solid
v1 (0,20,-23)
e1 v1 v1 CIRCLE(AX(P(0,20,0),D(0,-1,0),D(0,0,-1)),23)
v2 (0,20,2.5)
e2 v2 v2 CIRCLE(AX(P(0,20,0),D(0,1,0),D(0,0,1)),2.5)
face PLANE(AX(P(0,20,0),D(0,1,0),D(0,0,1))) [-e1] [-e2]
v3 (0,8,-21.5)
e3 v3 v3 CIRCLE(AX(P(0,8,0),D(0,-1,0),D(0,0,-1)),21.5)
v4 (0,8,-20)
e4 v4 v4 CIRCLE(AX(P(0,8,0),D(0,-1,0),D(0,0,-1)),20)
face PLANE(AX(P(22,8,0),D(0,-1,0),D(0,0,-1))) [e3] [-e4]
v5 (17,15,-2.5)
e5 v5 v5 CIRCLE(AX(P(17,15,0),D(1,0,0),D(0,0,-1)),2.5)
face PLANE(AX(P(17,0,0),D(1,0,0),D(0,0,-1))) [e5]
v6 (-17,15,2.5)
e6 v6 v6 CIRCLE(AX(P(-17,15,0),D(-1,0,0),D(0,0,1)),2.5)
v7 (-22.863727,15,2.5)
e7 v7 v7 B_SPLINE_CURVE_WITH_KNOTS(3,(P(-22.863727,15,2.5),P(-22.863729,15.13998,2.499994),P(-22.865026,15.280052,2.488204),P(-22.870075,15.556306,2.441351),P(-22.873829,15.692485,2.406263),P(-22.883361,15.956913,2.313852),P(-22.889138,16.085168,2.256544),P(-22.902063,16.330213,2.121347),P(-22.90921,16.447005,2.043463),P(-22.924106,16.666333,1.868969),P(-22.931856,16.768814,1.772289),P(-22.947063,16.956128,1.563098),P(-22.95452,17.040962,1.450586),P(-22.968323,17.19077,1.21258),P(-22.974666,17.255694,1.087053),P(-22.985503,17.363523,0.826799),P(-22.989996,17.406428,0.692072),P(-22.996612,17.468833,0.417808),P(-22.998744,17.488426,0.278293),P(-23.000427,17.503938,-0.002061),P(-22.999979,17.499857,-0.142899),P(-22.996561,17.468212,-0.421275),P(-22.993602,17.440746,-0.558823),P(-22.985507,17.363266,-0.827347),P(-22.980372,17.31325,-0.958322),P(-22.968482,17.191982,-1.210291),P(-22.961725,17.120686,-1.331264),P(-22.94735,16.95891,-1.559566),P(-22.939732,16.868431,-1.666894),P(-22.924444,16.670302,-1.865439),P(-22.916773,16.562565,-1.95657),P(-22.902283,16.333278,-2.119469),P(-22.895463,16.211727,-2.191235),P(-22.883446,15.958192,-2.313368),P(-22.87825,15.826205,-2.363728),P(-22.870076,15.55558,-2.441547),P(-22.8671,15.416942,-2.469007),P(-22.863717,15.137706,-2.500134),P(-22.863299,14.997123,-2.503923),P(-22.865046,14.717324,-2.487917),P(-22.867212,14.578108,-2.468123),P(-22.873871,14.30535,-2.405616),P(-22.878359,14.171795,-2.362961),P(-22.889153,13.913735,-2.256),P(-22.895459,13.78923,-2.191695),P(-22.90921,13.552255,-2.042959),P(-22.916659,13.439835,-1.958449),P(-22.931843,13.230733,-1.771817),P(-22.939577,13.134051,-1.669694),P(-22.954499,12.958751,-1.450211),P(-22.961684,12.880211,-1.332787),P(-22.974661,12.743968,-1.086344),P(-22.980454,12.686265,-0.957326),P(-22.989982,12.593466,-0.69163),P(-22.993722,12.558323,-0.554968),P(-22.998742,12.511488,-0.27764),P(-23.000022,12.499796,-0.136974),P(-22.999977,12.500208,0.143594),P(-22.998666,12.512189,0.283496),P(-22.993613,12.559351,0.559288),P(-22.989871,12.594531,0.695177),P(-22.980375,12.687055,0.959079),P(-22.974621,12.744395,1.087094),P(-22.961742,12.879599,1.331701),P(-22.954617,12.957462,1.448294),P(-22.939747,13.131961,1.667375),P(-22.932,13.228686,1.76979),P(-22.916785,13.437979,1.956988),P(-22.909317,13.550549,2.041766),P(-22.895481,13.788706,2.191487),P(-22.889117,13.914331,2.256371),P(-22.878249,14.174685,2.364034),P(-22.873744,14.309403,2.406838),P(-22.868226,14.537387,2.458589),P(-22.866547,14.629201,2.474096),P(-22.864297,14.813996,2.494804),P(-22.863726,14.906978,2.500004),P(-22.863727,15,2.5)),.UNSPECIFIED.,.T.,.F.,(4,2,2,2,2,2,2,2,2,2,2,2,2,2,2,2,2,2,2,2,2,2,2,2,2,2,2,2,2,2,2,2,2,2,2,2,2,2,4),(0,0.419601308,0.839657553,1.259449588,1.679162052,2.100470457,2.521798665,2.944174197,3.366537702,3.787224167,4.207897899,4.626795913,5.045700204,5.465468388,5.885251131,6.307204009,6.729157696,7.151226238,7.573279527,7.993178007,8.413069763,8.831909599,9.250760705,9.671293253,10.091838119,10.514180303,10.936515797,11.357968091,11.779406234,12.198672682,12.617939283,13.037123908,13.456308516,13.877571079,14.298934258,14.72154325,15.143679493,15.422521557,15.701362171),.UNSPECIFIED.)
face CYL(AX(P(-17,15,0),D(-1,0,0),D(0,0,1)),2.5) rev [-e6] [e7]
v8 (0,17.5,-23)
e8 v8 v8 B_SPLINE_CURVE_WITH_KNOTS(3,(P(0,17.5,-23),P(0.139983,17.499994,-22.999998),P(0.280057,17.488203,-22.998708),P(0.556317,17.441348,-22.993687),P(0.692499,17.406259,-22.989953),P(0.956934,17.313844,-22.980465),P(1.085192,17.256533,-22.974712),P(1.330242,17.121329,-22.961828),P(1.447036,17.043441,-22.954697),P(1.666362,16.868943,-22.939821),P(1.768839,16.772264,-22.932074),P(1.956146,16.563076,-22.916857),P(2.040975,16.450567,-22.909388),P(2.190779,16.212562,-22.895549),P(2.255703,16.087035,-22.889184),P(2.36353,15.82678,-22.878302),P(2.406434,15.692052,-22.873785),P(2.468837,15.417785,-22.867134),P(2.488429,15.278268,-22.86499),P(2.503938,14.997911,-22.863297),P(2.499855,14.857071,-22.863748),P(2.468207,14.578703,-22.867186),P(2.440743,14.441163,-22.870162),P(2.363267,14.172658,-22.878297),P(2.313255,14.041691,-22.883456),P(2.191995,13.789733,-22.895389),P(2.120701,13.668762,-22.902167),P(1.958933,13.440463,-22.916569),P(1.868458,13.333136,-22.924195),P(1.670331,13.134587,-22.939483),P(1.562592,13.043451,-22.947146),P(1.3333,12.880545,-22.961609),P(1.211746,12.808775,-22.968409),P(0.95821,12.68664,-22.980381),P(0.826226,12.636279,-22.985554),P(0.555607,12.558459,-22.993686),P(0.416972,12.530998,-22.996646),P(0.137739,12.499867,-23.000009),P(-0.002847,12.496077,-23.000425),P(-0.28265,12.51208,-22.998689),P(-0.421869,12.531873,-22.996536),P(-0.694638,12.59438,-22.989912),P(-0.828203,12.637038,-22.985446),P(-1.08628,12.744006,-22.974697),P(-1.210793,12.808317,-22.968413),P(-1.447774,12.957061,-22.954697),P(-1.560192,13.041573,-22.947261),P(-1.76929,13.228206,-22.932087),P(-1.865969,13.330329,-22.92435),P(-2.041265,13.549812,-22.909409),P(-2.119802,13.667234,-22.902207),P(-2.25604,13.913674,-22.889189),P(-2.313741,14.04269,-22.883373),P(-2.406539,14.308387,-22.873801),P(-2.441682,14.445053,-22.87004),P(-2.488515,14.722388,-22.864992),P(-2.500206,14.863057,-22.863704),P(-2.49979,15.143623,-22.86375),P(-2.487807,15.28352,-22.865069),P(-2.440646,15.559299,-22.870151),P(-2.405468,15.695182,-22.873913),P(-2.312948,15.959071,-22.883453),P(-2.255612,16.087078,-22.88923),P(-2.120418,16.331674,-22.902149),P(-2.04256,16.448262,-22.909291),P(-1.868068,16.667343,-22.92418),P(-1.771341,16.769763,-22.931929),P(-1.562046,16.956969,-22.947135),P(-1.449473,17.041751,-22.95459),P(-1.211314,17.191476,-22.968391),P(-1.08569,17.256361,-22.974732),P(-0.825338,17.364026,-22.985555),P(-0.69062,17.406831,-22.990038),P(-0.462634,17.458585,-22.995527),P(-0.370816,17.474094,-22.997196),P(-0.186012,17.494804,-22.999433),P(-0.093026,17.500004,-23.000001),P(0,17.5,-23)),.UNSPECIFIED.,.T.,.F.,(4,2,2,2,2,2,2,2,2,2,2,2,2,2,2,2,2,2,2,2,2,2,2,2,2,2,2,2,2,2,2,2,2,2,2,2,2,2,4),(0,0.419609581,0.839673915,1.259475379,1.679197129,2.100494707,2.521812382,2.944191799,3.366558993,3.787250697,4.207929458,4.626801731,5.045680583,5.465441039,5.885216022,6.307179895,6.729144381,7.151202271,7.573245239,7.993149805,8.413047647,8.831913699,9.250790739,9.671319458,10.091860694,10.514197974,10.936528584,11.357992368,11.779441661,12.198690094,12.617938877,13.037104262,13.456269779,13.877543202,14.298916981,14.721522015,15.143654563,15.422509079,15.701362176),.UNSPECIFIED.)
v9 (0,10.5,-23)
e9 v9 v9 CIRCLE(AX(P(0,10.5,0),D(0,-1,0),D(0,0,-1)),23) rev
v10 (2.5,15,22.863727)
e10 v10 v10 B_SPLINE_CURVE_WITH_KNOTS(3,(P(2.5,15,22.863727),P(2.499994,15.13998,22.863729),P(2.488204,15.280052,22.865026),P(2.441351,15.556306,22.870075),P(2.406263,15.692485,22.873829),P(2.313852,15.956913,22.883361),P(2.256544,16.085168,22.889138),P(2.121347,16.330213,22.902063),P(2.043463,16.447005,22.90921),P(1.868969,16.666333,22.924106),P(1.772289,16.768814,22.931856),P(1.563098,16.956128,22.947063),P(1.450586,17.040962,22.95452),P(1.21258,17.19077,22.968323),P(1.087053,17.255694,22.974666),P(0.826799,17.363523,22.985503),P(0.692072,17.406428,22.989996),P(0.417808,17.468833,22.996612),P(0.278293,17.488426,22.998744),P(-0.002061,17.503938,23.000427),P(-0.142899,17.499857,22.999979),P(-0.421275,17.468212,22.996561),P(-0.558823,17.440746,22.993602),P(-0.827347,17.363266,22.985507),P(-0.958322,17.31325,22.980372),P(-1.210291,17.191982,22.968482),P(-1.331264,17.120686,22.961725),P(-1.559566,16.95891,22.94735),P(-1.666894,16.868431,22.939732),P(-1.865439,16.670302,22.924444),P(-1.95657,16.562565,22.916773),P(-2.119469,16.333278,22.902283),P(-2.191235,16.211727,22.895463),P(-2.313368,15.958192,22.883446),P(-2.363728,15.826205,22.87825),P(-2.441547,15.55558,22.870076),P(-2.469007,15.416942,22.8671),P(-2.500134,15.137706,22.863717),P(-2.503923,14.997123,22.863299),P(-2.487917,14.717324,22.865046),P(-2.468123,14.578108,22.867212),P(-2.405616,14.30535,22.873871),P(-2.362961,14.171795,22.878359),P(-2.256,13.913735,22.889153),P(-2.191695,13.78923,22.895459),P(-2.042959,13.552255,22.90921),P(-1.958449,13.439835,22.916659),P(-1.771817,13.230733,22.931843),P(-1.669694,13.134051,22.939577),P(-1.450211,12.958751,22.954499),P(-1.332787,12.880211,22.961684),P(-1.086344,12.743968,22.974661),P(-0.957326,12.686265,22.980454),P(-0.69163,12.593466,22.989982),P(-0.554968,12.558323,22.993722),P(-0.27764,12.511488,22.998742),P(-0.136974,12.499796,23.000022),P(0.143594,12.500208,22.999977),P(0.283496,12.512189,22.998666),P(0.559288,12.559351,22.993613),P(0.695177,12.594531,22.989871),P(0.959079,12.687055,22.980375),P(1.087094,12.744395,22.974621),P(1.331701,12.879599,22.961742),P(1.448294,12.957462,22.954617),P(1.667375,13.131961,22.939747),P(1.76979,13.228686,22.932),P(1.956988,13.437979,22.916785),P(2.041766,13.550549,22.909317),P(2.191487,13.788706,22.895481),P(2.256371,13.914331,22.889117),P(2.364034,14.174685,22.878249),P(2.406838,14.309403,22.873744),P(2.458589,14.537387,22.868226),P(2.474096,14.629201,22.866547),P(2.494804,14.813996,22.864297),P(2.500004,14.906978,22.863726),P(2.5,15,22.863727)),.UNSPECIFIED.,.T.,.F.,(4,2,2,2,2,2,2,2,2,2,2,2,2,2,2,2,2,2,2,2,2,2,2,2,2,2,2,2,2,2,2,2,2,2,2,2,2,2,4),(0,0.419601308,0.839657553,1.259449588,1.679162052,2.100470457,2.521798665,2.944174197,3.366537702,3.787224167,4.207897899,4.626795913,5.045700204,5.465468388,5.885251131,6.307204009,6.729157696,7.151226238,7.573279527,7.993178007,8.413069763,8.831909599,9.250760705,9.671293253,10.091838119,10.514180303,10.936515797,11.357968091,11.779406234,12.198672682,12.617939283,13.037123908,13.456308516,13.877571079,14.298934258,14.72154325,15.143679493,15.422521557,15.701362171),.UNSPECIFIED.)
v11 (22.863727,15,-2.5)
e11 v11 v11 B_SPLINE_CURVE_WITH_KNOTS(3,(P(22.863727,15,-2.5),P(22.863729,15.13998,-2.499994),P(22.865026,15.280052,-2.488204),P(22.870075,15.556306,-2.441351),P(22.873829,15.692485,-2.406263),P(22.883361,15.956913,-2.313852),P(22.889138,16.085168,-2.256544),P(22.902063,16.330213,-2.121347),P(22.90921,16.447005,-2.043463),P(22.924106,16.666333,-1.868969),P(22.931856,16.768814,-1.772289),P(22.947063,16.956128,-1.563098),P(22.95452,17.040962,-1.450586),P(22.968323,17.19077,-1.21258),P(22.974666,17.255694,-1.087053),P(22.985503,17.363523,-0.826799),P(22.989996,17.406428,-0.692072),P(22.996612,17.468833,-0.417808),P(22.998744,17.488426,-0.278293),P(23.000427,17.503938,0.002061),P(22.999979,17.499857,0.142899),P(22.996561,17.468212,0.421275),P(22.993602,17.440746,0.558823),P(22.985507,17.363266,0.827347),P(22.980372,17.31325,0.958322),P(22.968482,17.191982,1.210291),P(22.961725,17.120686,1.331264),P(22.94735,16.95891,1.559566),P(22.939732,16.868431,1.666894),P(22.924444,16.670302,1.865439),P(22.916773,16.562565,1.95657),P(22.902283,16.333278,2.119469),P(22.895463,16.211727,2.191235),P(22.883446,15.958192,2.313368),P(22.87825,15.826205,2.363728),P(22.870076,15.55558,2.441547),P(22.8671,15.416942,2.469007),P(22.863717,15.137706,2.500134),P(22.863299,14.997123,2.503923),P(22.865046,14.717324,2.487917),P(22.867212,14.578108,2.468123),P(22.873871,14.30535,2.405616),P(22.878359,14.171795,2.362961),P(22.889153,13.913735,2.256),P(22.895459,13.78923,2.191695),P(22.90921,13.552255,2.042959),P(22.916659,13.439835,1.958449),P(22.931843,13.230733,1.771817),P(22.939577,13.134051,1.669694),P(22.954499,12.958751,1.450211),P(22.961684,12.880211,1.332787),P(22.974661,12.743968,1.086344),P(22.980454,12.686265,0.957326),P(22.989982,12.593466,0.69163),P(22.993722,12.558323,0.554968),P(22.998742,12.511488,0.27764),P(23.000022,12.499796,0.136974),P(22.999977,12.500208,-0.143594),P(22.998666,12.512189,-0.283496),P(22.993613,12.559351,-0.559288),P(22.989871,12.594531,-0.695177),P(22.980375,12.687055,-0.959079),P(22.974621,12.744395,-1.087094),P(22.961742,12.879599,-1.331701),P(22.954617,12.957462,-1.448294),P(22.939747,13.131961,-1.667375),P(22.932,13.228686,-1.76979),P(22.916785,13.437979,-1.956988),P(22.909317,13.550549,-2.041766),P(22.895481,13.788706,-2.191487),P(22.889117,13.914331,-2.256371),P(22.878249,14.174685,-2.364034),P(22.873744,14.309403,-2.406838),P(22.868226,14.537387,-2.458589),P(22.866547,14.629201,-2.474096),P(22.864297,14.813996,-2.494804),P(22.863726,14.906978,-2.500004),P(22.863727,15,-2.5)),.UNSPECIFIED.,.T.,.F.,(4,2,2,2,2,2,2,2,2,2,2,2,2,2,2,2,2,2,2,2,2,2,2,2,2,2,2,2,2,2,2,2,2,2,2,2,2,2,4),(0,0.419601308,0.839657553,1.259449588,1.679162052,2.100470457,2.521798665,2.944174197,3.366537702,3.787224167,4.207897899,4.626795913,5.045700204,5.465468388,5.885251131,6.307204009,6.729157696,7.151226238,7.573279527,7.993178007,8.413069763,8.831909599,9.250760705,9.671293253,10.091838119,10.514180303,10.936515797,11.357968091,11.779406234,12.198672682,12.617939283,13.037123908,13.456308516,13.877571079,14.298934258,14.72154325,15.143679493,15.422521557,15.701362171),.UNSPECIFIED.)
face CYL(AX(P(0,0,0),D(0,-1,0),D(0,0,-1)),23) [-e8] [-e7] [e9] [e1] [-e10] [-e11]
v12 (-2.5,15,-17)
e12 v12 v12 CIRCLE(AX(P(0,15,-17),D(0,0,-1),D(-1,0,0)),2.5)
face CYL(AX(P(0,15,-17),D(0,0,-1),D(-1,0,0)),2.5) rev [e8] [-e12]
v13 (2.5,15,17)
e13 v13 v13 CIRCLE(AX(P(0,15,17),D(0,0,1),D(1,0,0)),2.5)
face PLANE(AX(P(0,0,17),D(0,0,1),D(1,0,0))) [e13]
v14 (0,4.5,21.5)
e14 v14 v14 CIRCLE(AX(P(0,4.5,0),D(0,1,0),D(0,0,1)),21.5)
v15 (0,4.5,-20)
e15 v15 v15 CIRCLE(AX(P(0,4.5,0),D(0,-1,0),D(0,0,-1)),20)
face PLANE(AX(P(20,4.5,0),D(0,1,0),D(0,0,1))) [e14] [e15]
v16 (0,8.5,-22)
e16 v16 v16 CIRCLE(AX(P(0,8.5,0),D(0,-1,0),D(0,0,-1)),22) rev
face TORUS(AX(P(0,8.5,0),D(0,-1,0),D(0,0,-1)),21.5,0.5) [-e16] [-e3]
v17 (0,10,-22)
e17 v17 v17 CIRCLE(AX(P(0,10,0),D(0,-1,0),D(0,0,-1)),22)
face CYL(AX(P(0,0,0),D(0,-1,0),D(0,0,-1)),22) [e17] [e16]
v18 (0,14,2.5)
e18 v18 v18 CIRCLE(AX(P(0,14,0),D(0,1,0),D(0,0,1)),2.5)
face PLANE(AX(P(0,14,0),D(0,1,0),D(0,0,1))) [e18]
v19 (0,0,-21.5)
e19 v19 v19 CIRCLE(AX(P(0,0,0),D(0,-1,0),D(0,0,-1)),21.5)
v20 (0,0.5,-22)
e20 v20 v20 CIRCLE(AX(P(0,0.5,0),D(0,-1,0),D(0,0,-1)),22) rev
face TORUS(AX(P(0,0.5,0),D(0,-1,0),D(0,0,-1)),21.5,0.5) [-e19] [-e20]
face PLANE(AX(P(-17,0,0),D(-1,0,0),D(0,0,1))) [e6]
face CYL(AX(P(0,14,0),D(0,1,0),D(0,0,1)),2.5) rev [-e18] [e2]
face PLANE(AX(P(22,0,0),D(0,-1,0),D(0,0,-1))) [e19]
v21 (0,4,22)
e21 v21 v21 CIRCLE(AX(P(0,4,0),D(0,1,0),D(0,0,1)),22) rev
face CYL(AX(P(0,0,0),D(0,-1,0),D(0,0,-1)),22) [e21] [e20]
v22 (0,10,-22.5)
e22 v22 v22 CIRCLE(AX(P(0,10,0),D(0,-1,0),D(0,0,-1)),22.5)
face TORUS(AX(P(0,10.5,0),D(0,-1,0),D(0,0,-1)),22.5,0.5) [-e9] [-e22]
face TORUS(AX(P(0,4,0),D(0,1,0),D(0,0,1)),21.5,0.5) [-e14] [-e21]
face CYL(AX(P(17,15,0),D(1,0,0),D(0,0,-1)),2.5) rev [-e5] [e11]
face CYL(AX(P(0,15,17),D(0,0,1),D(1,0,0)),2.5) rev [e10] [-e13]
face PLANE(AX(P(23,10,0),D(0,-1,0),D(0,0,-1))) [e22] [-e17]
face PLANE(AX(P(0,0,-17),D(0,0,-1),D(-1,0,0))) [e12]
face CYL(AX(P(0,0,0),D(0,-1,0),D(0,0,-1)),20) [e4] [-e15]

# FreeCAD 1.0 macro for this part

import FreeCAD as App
import Part
import Sketcher
Q = App.Units.Quantity


def edges_at(feature, points):
    """Names of the edges that pass closest to the given points."""
    edges = feature.Shape.Edges
    near = lambda p: min(range(len(edges)), key=lambda i: edges[i].distToShape(Part.Vertex(*p))[0])
    return sorted({f"Edge{near(p) + 1}" for p in points})

doc = App.newDocument("Part")
params = doc.addObject("Spreadsheet::Sheet", "Params")
for row, (alias, value) in enumerate([
    ("sketch1_width", "22 mm"),
    ("sketch1_width2", "2 mm"),
    ("sketch1_width3", "1 mm"),
    ("sketch1_height", "20 mm"),
    ("sketch1_height2", "10 mm"),
    ("revolution_angle", "360 deg"),
    ("sketch2_diameter", "5 mm"),
    ("pocket1_length", "6 mm"),
    ("sketch3_diameter", "5 mm"),
    ("pocket2_length", "6 mm"),
    ("sketch4_diameter", "5 mm"),
    ("pocket3_length", "6 mm"),
    ("sketch5_diameter", "5 mm"),
    ("pocket4_length", "6 mm"),
    ("sketch6_diameter", "5 mm"),
    ("pocket5_length", "6 mm"),
    ("fillet_radius", "0.5 mm"),
    ("fillet2_radius", "0.5 mm"),
    ("fillet3_radius", "0.5 mm"),
    ("fillet4_radius", "0.5 mm"),
], start=1):
    params.set(f"A{row}", alias)
    params.set(f"B{row}", "=" + value)
    params.setAlias(f"B{row}", alias)

body = doc.addObject("PartDesign::Body", "Body")

# Sketch on XY plane
sketch1 = body.newObject("Sketcher::SketchObject", "Sketch")
sketch1.AttachmentSupport = (doc.getObject("XY_Plane"), [""])
sketch1.MapMode = "FlatFace"
sketch1.addGeometry(Part.LineSegment(App.Vector(0, 20, 0), App.Vector(0, 0, 0)), False)
sketch1.addGeometry(Part.LineSegment(App.Vector(0, 0, 0), App.Vector(22, 0, 0)), False)
sketch1.addGeometry(Part.LineSegment(App.Vector(22, 0, 0), App.Vector(22, 4.5, 0)), False)
sketch1.addGeometry(Part.LineSegment(App.Vector(22, 4.5, 0), App.Vector(20, 4.5, 0)), False)
sketch1.addGeometry(Part.LineSegment(App.Vector(20, 4.5, 0), App.Vector(20, 8, 0)), False)
sketch1.addGeometry(Part.LineSegment(App.Vector(20, 8, 0), App.Vector(22, 8, 0)), False)
sketch1.addGeometry(Part.LineSegment(App.Vector(22, 8, 0), App.Vector(22, 10, 0)), False)
sketch1.addGeometry(Part.LineSegment(App.Vector(22, 10, 0), App.Vector(23, 10, 0)), False)
sketch1.addGeometry(Part.LineSegment(App.Vector(23, 10, 0), App.Vector(23, 20, 0)), False)
sketch1.addGeometry(Part.LineSegment(App.Vector(23, 20, 0), App.Vector(0, 20, 0)), False)
sketch1.addConstraint(Sketcher.Constraint("Coincident", 0, 2, 1, 1))
sketch1.addConstraint(Sketcher.Constraint("Coincident", 1, 2, 2, 1))
sketch1.addConstraint(Sketcher.Constraint("Coincident", 2, 2, 3, 1))
sketch1.addConstraint(Sketcher.Constraint("Coincident", 3, 2, 4, 1))
sketch1.addConstraint(Sketcher.Constraint("Coincident", 4, 2, 5, 1))
sketch1.addConstraint(Sketcher.Constraint("Coincident", 5, 2, 6, 1))
sketch1.addConstraint(Sketcher.Constraint("Coincident", 6, 2, 7, 1))
sketch1.addConstraint(Sketcher.Constraint("Coincident", 7, 2, 8, 1))
sketch1.addConstraint(Sketcher.Constraint("Coincident", 8, 2, 9, 1))
sketch1.addConstraint(Sketcher.Constraint("Coincident", 9, 2, 0, 1))
sketch1.addConstraint(Sketcher.Constraint("Vertical", 0))
sketch1.addConstraint(Sketcher.Constraint("Horizontal", 1))
sketch1.addConstraint(Sketcher.Constraint("Vertical", 2))
sketch1.addConstraint(Sketcher.Constraint("Horizontal", 3))
sketch1.addConstraint(Sketcher.Constraint("Vertical", 4))
sketch1.addConstraint(Sketcher.Constraint("Horizontal", 5))
sketch1.addConstraint(Sketcher.Constraint("Vertical", 6))
sketch1.addConstraint(Sketcher.Constraint("Horizontal", 7))
sketch1.addConstraint(Sketcher.Constraint("Vertical", 8))
sketch1.addConstraint(Sketcher.Constraint("Horizontal", 9))
sketch1.addConstraint(Sketcher.Constraint("Coincident", 0, 2, -1, 1))
sketch1.addConstraint(Sketcher.Constraint("Vertical", 2, 2, 5, 2))
sketch1.addConstraint(Sketcher.Constraint("Equal", 5, 6))
sketch1.addConstraint(Sketcher.Constraint("DistanceX", 1, 1, 1, 2, Q("22 mm")))
sketch1.addConstraint(Sketcher.Constraint("DistanceX", 3, 2, 3, 1, Q("2 mm")))
sketch1.addConstraint(Sketcher.Constraint("DistanceX", 7, 1, 7, 2, Q("1 mm")))
sketch1.addConstraint(Sketcher.Constraint("DistanceY", 0, 2, 0, 1, Q("20 mm")))
sketch1.addConstraint(Sketcher.Constraint("DistanceY", 8, 1, 8, 2, Q("10 mm")))
sketch1.addConstraint(Sketcher.Constraint("DistanceY", 2, 1, 2, 2, Q("4.5 mm")))
sketch1.setExpression("Constraints[23]", "Params.sketch1_width")
sketch1.setExpression("Constraints[24]", "Params.sketch1_width2")
sketch1.setExpression("Constraints[25]", "Params.sketch1_width3")
sketch1.setExpression("Constraints[26]", "Params.sketch1_height")
sketch1.setExpression("Constraints[27]", "Params.sketch1_height2")
revolution = body.newObject("PartDesign::Revolution", "Revolution")
revolution.Profile = sketch1
revolution.ReferenceAxis = (sketch1, ["V_Axis"])
revolution.setExpression("Angle", "Params.revolution_angle")

# Sketch on YZ plane
sketch2 = body.newObject("Sketcher::SketchObject", "Sketch001")
sketch2.AttachmentSupport = (doc.getObject("YZ_Plane"), [""])
sketch2.MapMode = "FlatFace"
sketch2.AttachmentOffset = App.Placement(App.Vector(0, 0, -23), App.Rotation())
sketch2.addGeometry(Part.Circle(App.Vector(15, 0, 0), App.Vector(0, 0, 1), 2.5), False)
sketch2.addConstraint(Sketcher.Constraint("PointOnObject", 0, 3, -1))
sketch2.addConstraint(Sketcher.Constraint("Diameter", 0, Q("5 mm")))
sketch2.addConstraint(Sketcher.Constraint("DistanceX", -1, 1, 0, 3, Q("15 mm")))
sketch2.setExpression("Constraints[1]", "Params.sketch2_diameter")
pocket1 = body.newObject("PartDesign::Pocket", "Pocket")
pocket1.Profile = sketch2
pocket1.setExpression("Length", "Params.pocket1_length")
pocket1.Reversed = True

# Sketch on XY plane
sketch3 = body.newObject("Sketcher::SketchObject", "Sketch002")
sketch3.AttachmentSupport = (doc.getObject("XY_Plane"), [""])
sketch3.MapMode = "FlatFace"
sketch3.AttachmentOffset = App.Placement(App.Vector(0, 0, -23), App.Rotation())
sketch3.addGeometry(Part.Circle(App.Vector(0, 15, 0), App.Vector(0, 0, 1), 2.5), False)
sketch3.addConstraint(Sketcher.Constraint("PointOnObject", 0, 3, -2))
sketch3.addConstraint(Sketcher.Constraint("Diameter", 0, Q("5 mm")))
sketch3.addConstraint(Sketcher.Constraint("DistanceY", -1, 1, 0, 3, Q("15 mm")))
sketch3.setExpression("Constraints[1]", "Params.sketch3_diameter")
pocket2 = body.newObject("PartDesign::Pocket", "Pocket001")
pocket2.Profile = sketch3
pocket2.setExpression("Length", "Params.pocket2_length")
pocket2.Reversed = True

# Sketch on YZ plane
sketch4 = body.newObject("Sketcher::SketchObject", "Sketch003")
sketch4.AttachmentSupport = (doc.getObject("YZ_Plane"), [""])
sketch4.MapMode = "FlatFace"
sketch4.AttachmentOffset = App.Placement(App.Vector(0, 0, 17), App.Rotation())
sketch4.addGeometry(Part.Circle(App.Vector(15, 0, 0), App.Vector(0, 0, 1), 2.5), False)
sketch4.addConstraint(Sketcher.Constraint("PointOnObject", 0, 3, -1))
sketch4.addConstraint(Sketcher.Constraint("Diameter", 0, Q("5 mm")))
sketch4.addConstraint(Sketcher.Constraint("DistanceX", -1, 1, 0, 3, Q("15 mm")))
sketch4.setExpression("Constraints[1]", "Params.sketch4_diameter")
pocket3 = body.newObject("PartDesign::Pocket", "Pocket002")
pocket3.Profile = sketch4
pocket3.setExpression("Length", "Params.pocket3_length")
pocket3.Reversed = True

# Sketch on XY plane
sketch5 = body.newObject("Sketcher::SketchObject", "Sketch004")
sketch5.AttachmentSupport = (doc.getObject("XY_Plane"), [""])
sketch5.MapMode = "FlatFace"
sketch5.AttachmentOffset = App.Placement(App.Vector(0, 0, 17), App.Rotation())
sketch5.addGeometry(Part.Circle(App.Vector(0, 15, 0), App.Vector(0, 0, 1), 2.5), False)
sketch5.addConstraint(Sketcher.Constraint("PointOnObject", 0, 3, -2))
sketch5.addConstraint(Sketcher.Constraint("Diameter", 0, Q("5 mm")))
sketch5.addConstraint(Sketcher.Constraint("DistanceY", -1, 1, 0, 3, Q("15 mm")))
sketch5.setExpression("Constraints[1]", "Params.sketch5_diameter")
pocket4 = body.newObject("PartDesign::Pocket", "Pocket003")
pocket4.Profile = sketch5
pocket4.setExpression("Length", "Params.pocket4_length")
pocket4.Reversed = True

# Sketch on XZ plane
sketch6 = body.newObject("Sketcher::SketchObject", "Sketch005")
sketch6.AttachmentSupport = (doc.getObject("XZ_Plane"), [""])
sketch6.MapMode = "FlatFace"
sketch6.AttachmentOffset = App.Placement(App.Vector(0, 0, -20), App.Rotation())
sketch6.addGeometry(Part.Circle(App.Vector(0, 0, 0), App.Vector(0, 0, 1), 2.5), False)
sketch6.addConstraint(Sketcher.Constraint("Coincident", 0, 3, -1, 1))
sketch6.addConstraint(Sketcher.Constraint("Diameter", 0, Q("5 mm")))
sketch6.setExpression("Constraints[1]", "Params.sketch6_diameter")
pocket5 = body.newObject("PartDesign::Pocket", "Pocket004")
pocket5.Profile = sketch6
pocket5.setExpression("Length", "Params.pocket5_length")
pocket5.Reversed = True
doc.recompute()

fillet = body.newObject("PartDesign::Fillet", "Fillet")
fillet.Base = (pocket5, edges_at(pocket5, [(0, 8, 22)]))
fillet.setExpression("Radius", "Params.fillet_radius")
doc.recompute()

fillet2 = body.newObject("PartDesign::Fillet", "Fillet001")
fillet2.Base = (fillet, edges_at(fillet, [(0, 4.5, 22)]))
fillet2.setExpression("Radius", "Params.fillet2_radius")
doc.recompute()

fillet3 = body.newObject("PartDesign::Fillet", "Fillet002")
fillet3.Base = (fillet2, edges_at(fillet2, [(0, 0, 22)]))
fillet3.setExpression("Radius", "Params.fillet3_radius")
doc.recompute()

fillet4 = body.newObject("PartDesign::Fillet", "Fillet003")
fillet4.Base = (fillet3, edges_at(fillet3, [(0, 10, 23)]))
fillet4.setExpression("Radius", "Params.fillet4_radius")

doc.recompute()
